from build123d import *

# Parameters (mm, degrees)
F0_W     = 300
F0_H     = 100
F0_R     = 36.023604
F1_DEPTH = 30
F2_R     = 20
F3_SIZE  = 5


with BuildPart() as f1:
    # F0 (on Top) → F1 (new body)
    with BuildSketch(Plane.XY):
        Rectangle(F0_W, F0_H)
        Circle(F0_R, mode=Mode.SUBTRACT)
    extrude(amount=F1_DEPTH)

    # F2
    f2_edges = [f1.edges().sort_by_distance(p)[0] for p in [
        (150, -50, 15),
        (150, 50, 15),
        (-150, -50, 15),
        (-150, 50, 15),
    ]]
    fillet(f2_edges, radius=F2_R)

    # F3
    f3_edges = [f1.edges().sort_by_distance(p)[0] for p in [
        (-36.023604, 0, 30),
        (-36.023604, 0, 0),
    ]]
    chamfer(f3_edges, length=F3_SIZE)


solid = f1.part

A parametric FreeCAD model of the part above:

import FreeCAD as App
import Part
import Sketcher
from FreeCAD import Vector
Q = App.Units.Quantity


def edges_at(feature, points):
    """Names of the edges that pass closest to the given points."""
    edges = feature.Shape.Edges
    near = lambda p: min(range(len(edges)), key=lambda i: edges[i].distToShape(Part.Vertex(*p))[0])
    return sorted({f"Edge{near(p) + 1}" for p in points})

doc = App.newDocument("Part")
body = doc.addObject("PartDesign::Body", "Body")

# Sketch on XY plane
sketch1 = body.newObject("Sketcher::SketchObject", "Sketch")
sketch1.AttachmentSupport = (doc.getObject("XY_Plane"), [""])
sketch1.MapMode = "FlatFace"
sketch1.addGeometry(Part.LineSegment(Vector(-150, 50, 0), Vector(-150, -50, 0)), False)
sketch1.addGeometry(Part.LineSegment(Vector(-150, -50, 0), Vector(150, -50, 0)), False)
sketch1.addGeometry(Part.LineSegment(Vector(150, -50, 0), Vector(150, 50, 0)), False)
sketch1.addGeometry(Part.LineSegment(Vector(150, 50, 0), Vector(-150, 50, 0)), False)
sketch1.addGeometry(Part.Circle(Vector(0, 0, 0), Vector(0, 0, 1), 36), False)
sketch1.addConstraint(Sketcher.Constraint("Coincident", 0, 2, 1, 1))
sketch1.addConstraint(Sketcher.Constraint("Coincident", 1, 2, 2, 1))
sketch1.addConstraint(Sketcher.Constraint("Coincident", 2, 2, 3, 1))
sketch1.addConstraint(Sketcher.Constraint("Coincident", 3, 2, 0, 1))
sketch1.addConstraint(Sketcher.Constraint("Vertical", 0))
sketch1.addConstraint(Sketcher.Constraint("Horizontal", 1))
sketch1.addConstraint(Sketcher.Constraint("Vertical", 2))
sketch1.addConstraint(Sketcher.Constraint("Horizontal", 3))
sketch1.addConstraint(Sketcher.Constraint("Coincident", 4, 3, -1, 1))
sketch1.addConstraint(Sketcher.Constraint("Symmetric", 0, 2, 2, 2, -1, 1))
sketch1.addConstraint(Sketcher.Constraint("DistanceX", 1, 1, 1, 2, Q("300 mm")))
sketch1.addConstraint(Sketcher.Constraint("DistanceY", 0, 2, 0, 1, Q("100 mm")))
sketch1.addConstraint(Sketcher.Constraint("Diameter", 4, Q("72.047208 mm")))
pad1 = body.newObject("PartDesign::Pad", "Pad")
pad1.Profile = sketch1
pad1.Length = 30
doc.recompute()

fillet = body.newObject("PartDesign::Fillet", "Fillet")
fillet.Base = (pad1, edges_at(pad1, [
    (150, -50, 15),
    (150, 50, 15),
    (-150, -50, 15),
    (-150, 50, 15),
]))
fillet.Radius = 20
doc.recompute()

chamfer = body.newObject("PartDesign::Chamfer", "Chamfer")
chamfer.Base = (fillet, edges_at(fillet, [(-36.024, 0, 30), (-36.024, 0, 0)]))
chamfer.Size = 5

doc.recompute()
